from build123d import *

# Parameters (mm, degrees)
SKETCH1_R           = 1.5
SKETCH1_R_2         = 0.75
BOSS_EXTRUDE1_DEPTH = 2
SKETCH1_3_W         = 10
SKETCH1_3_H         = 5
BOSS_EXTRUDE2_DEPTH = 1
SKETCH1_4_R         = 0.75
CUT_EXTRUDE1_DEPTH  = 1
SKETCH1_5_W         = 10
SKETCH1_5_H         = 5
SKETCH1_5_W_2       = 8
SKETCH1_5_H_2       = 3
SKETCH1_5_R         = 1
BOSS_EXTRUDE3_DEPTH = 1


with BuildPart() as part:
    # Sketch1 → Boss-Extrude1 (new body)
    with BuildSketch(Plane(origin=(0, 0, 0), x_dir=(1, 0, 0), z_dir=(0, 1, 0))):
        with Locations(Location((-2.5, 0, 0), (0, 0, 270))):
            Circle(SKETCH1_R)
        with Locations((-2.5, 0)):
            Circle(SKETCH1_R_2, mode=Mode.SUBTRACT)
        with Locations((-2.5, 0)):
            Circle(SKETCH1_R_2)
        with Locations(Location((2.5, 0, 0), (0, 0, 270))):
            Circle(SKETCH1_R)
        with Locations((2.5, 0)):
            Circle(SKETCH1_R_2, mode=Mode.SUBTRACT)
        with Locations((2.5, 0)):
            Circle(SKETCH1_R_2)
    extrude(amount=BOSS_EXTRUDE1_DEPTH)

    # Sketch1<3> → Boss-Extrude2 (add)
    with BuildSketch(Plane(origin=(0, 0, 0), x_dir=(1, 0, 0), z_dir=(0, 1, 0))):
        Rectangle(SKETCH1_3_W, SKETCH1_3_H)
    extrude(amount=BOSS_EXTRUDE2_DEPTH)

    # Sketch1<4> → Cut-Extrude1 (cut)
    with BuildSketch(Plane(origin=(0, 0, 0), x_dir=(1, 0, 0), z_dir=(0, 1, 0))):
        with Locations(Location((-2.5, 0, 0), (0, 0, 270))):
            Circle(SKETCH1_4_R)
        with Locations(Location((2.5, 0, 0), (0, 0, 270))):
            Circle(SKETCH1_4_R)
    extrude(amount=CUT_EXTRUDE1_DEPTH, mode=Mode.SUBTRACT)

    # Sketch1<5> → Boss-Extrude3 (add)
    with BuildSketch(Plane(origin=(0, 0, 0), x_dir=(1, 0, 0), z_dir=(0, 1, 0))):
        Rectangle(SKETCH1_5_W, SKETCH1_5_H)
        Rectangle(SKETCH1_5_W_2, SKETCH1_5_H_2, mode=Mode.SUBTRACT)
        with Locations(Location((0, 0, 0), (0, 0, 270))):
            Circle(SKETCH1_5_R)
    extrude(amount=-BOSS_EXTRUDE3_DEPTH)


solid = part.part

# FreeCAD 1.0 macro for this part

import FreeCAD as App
import Part
import Sketcher

doc = App.newDocument("Part")
body = doc.addObject("PartDesign::Body", "Body")
body.AllowCompound = True

sketch1 = body.newObject("Sketcher::SketchObject", "Sketch")
sketch1.AttachmentSupport = (doc.getObject("XZ_Plane"), [""])
sketch1.MapMode = "FlatFace"
sketch1.addGeometry(Part.Circle(App.Vector(-2.5, 0, 0), App.Vector(0, 0, 1), 1.5), False)
sketch1.addGeometry(Part.Circle(App.Vector(2.5, 0, 0), App.Vector(0, 0, 1), 1.5), False)
sketch1.addConstraint(Sketcher.Constraint("Equal", 0, 1))
sketch1.addConstraint(Sketcher.Constraint("Symmetric", 0, 3, 1, 3, -1, 1))
sketch1.addConstraint(Sketcher.Constraint("PointOnObject", 0, 3, -1))
sketch1.addConstraint(Sketcher.Constraint("Diameter", 0, 3.0))
sketch1.addConstraint(Sketcher.Constraint("DistanceX", 0, 3, 1, 3, 5.0))
pad1 = body.newObject("PartDesign::Pad", "Pad")
pad1.Profile = sketch1
pad1.Length = 2
pad1.Reversed = True

sketch2 = body.newObject("Sketcher::SketchObject", "Sketch001")
sketch2.AttachmentSupport = (doc.getObject("XZ_Plane"), [""])
sketch2.MapMode = "FlatFace"
sketch2.addGeometry(Part.LineSegment(App.Vector(-5, -2, 0), App.Vector(-5, 2, 0)), False)
sketch2.addGeometry(Part.LineSegment(App.Vector(-5, 2, 0), App.Vector(5, 2, 0)), False)
sketch2.addGeometry(Part.LineSegment(App.Vector(5, 2, 0), App.Vector(5, -2, 0)), False)
sketch2.addGeometry(Part.LineSegment(App.Vector(5, -2, 0), App.Vector(-5, -2, 0)), False)
sketch2.addConstraint(Sketcher.Constraint("Coincident", 0, 2, 1, 1))
sketch2.addConstraint(Sketcher.Constraint("Coincident", 1, 2, 2, 1))
sketch2.addConstraint(Sketcher.Constraint("Coincident", 2, 2, 3, 1))
sketch2.addConstraint(Sketcher.Constraint("Coincident", 3, 2, 0, 1))
sketch2.addConstraint(Sketcher.Constraint("Vertical", 0))
sketch2.addConstraint(Sketcher.Constraint("Horizontal", 1))
sketch2.addConstraint(Sketcher.Constraint("Vertical", 2))
sketch2.addConstraint(Sketcher.Constraint("Horizontal", 3))
sketch2.addConstraint(Sketcher.Constraint("Symmetric", 0, 2, 2, 2, -1, 1))
sketch2.addConstraint(Sketcher.Constraint("DistanceX", 1, 1, 1, 2, 10.0))
sketch2.addConstraint(Sketcher.Constraint("DistanceY", 0, 1, 0, 2, 5.0))
pad2 = body.newObject("PartDesign::Pad", "Pad001")
pad2.Profile = sketch2
pad2.Length = 1
pad2.Reversed = True

sketch3 = body.newObject("Sketcher::SketchObject", "Sketch002")
sketch3.AttachmentSupport = (doc.getObject("XZ_Plane"), [""])
sketch3.MapMode = "FlatFace"
sketch3.addGeometry(Part.Circle(App.Vector(-2.5, 0, 0), App.Vector(0, 0, 1), 0.8), False)
sketch3.addGeometry(Part.Circle(App.Vector(2.5, 0, 0), App.Vector(0, 0, 1), 0.8), False)
sketch3.addConstraint(Sketcher.Constraint("Equal", 0, 1))
sketch3.addConstraint(Sketcher.Constraint("Symmetric", 0, 3, 1, 3, -1, 1))
sketch3.addConstraint(Sketcher.Constraint("PointOnObject", 0, 3, -1))
sketch3.addConstraint(Sketcher.Constraint("Diameter", 0, 1.5))
sketch3.addConstraint(Sketcher.Constraint("DistanceX", 0, 3, 1, 3, 5.0))
pocket1 = body.newObject("PartDesign::Pocket", "Pocket")
pocket1.Profile = sketch3
pocket1.Length = 1

sketch4 = body.newObject("Sketcher::SketchObject", "Sketch003")
sketch4.AttachmentSupport = (doc.getObject("XZ_Plane"), [""])
sketch4.MapMode = "FlatFace"
sketch4.addGeometry(Part.LineSegment(App.Vector(-5, -2.5, 0), App.Vector(-5, 2.5, 0)), False)
sketch4.addGeometry(Part.LineSegment(App.Vector(-5, 2.5, 0), App.Vector(5, 2.5, 0)), False)
sketch4.addGeometry(Part.LineSegment(App.Vector(5, 2.5, 0), App.Vector(5, -2.5, 0)), False)
sketch4.addGeometry(Part.LineSegment(App.Vector(5, -2.5, 0), App.Vector(-5, -2.5, 0)), False)
sketch4.addGeometry(Part.LineSegment(App.Vector(4, 1.5, 0), App.Vector(-4, 1.5, 0)), False)
sketch4.addGeometry(Part.LineSegment(App.Vector(-4, 1.5, 0), App.Vector(-4, -1.5, 0)), False)
sketch4.addGeometry(Part.LineSegment(App.Vector(-4, -1.5, 0), App.Vector(4, -1.5, 0)), False)
sketch4.addGeometry(Part.LineSegment(App.Vector(4, -1.5, 0), App.Vector(4, 1.5, 0)), False)
sketch4.addGeometry(Part.Circle(App.Vector(0, 0, 0), App.Vector(0, 0, 1), 1), False)
sketch4.addConstraint(Sketcher.Constraint("Coincident", 0, 2, 1, 1))
sketch4.addConstraint(Sketcher.Constraint("Coincident", 1, 2, 2, 1))
sketch4.addConstraint(Sketcher.Constraint("Coincident", 2, 2, 3, 1))
sketch4.addConstraint(Sketcher.Constraint("Coincident", 3, 2, 0, 1))
sketch4.addConstraint(Sketcher.Constraint("Coincident", 4, 2, 5, 1))
sketch4.addConstraint(Sketcher.Constraint("Coincident", 5, 2, 6, 1))
sketch4.addConstraint(Sketcher.Constraint("Coincident", 6, 2, 7, 1))
sketch4.addConstraint(Sketcher.Constraint("Coincident", 7, 2, 4, 1))
sketch4.addConstraint(Sketcher.Constraint("Vertical", 0))
sketch4.addConstraint(Sketcher.Constraint("Horizontal", 1))
sketch4.addConstraint(Sketcher.Constraint("Vertical", 2))
sketch4.addConstraint(Sketcher.Constraint("Horizontal", 3))
sketch4.addConstraint(Sketcher.Constraint("Horizontal", 4))
sketch4.addConstraint(Sketcher.Constraint("Vertical", 5))
sketch4.addConstraint(Sketcher.Constraint("Horizontal", 6))
sketch4.addConstraint(Sketcher.Constraint("Vertical", 7))
sketch4.addConstraint(Sketcher.Constraint("Coincident", 8, 3, -1, 1))
sketch4.addConstraint(Sketcher.Constraint("Symmetric", 0, 2, 2, 2, -1, 1))
sketch4.addConstraint(Sketcher.Constraint("Symmetric", 4, 2, 6, 2, -1, 1))
sketch4.addConstraint(Sketcher.Constraint("Diameter", 8, 2.0))
sketch4.addConstraint(Sketcher.Constraint("DistanceX", 1, 1, 1, 2, 10.0))
sketch4.addConstraint(Sketcher.Constraint("DistanceX", 4, 2, 4, 1, 8.0))
sketch4.addConstraint(Sketcher.Constraint("DistanceY", 0, 1, 0, 2, 5.0))
sketch4.addConstraint(Sketcher.Constraint("DistanceY", 5, 2, 5, 1, 3.0))
pad3 = body.newObject("PartDesign::Pad", "Pad002")
pad3.Profile = sketch4
pad3.Length = 1

doc.recompute()
